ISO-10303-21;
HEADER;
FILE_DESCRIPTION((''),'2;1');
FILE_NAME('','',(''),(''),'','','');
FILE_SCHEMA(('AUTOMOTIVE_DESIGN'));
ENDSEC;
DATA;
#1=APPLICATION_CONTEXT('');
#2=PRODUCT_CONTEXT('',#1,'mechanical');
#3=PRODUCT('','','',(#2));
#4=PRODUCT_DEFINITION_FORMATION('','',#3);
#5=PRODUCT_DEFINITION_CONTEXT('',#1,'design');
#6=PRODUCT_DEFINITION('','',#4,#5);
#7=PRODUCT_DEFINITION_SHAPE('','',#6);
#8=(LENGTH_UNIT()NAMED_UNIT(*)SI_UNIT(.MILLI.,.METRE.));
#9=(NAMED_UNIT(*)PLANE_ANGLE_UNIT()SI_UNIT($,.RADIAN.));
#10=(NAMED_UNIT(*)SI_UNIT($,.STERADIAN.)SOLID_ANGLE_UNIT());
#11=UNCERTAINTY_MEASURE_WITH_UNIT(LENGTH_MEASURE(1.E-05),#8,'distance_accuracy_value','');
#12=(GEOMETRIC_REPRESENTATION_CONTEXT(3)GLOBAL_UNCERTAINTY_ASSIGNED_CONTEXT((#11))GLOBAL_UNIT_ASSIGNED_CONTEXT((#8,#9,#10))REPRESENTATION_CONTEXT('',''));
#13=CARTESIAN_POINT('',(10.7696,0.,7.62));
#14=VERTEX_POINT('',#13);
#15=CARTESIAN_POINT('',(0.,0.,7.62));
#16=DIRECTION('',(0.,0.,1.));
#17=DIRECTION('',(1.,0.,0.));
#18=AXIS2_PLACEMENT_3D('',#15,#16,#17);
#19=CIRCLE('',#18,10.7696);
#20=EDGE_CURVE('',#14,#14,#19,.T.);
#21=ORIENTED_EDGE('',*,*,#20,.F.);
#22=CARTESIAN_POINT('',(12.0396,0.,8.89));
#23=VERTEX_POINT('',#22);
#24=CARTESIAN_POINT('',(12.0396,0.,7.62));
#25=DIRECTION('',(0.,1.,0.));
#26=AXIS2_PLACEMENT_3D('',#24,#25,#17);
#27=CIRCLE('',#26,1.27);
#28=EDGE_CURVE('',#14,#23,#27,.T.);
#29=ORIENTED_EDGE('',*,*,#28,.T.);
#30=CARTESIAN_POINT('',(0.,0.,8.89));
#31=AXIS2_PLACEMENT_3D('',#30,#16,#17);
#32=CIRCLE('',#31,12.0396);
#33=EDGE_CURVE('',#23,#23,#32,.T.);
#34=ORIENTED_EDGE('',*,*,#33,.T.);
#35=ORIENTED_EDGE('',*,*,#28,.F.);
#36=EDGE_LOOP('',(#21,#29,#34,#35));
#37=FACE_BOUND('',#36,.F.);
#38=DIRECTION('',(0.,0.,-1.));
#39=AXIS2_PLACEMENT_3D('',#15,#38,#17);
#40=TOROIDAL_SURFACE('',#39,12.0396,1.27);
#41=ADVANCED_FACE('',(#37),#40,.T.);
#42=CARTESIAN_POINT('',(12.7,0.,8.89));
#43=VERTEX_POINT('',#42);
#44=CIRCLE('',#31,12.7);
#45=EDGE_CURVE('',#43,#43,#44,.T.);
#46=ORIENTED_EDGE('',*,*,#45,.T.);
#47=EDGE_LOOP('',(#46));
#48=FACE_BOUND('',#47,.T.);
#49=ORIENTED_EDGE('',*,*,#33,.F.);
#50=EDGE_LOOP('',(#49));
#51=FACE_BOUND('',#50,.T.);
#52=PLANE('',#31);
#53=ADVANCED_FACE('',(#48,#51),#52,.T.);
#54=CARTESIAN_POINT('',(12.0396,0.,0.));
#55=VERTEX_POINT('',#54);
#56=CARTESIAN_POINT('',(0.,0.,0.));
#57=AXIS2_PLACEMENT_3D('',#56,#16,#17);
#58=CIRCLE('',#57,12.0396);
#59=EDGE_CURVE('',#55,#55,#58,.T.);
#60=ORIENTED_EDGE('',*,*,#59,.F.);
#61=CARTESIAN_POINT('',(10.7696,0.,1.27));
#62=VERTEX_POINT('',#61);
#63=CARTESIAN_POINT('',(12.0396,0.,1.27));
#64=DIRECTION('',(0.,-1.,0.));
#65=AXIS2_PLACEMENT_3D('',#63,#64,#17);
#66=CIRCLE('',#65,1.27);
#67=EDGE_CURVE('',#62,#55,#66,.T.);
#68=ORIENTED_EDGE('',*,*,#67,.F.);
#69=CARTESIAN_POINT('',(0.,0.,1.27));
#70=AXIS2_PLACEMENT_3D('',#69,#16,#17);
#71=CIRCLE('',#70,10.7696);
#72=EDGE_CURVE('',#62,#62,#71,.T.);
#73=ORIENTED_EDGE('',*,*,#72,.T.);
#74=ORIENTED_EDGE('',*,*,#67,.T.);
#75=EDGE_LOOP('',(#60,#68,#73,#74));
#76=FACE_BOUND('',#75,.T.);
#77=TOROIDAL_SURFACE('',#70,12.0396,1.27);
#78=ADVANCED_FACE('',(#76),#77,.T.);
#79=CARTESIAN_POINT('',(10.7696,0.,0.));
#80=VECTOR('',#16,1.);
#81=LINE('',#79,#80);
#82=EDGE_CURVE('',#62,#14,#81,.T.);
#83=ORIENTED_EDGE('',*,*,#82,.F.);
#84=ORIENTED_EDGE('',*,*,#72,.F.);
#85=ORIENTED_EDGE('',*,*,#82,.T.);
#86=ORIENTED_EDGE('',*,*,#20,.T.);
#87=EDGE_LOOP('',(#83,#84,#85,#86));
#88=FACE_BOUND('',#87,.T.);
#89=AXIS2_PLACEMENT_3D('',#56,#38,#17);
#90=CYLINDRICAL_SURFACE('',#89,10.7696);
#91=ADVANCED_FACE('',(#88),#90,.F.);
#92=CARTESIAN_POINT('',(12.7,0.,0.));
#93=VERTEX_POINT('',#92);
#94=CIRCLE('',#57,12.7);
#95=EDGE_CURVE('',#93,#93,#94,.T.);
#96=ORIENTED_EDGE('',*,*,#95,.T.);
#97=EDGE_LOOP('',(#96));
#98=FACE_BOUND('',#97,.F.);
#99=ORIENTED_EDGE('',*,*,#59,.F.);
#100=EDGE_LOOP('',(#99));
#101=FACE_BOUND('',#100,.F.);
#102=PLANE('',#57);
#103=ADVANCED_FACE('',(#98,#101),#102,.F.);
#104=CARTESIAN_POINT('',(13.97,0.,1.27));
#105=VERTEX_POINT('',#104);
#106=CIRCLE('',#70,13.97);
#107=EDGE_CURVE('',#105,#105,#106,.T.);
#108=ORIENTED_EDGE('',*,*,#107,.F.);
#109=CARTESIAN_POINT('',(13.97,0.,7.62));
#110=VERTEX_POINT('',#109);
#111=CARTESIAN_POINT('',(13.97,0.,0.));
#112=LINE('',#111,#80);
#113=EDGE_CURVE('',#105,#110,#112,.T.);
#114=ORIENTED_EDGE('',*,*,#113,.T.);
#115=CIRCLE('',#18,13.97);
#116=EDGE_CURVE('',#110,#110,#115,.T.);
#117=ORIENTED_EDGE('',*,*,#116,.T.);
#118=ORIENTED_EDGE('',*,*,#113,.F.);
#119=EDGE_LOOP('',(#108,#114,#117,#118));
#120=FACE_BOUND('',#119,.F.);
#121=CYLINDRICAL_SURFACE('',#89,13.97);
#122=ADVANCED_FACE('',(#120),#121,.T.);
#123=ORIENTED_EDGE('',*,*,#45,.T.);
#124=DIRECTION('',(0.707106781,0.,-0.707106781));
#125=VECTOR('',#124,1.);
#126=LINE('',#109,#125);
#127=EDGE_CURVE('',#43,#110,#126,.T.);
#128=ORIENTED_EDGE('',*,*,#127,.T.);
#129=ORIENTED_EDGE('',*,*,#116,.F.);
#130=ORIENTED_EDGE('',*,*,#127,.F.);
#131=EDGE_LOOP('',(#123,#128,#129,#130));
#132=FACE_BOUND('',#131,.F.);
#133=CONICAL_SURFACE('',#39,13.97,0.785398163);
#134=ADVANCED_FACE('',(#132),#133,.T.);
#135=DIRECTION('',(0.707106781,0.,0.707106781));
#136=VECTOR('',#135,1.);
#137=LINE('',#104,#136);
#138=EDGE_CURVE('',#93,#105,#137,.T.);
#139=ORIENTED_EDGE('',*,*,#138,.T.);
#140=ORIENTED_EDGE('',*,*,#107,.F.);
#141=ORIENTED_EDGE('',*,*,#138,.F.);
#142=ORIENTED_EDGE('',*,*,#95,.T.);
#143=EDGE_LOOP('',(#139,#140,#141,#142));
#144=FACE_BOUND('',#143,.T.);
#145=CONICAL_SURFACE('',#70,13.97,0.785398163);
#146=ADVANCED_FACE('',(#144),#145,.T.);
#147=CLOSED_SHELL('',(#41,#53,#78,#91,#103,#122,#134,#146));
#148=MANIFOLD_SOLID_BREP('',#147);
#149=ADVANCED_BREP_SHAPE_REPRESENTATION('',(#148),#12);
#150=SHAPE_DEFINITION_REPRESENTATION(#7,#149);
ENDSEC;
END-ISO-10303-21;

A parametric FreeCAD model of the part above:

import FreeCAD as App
import Part
import Sketcher
Q = App.Units.Quantity


def edges_at(feature, points):
    """Names of the edges that pass closest to the given points."""
    edges = feature.Shape.Edges
    near = lambda p: min(range(len(edges)), key=lambda i: edges[i].distToShape(Part.Vertex(*p))[0])
    return sorted({f"Edge{near(p) + 1}" for p in points})

doc = App.newDocument("Part")
body = doc.addObject("PartDesign::Body", "Body")

# Sketch on XY plane
sketch1 = body.newObject("Sketcher::SketchObject", "Sketch")
sketch1.AttachmentSupport = (doc.getObject("XY_Plane"), [""])
sketch1.MapMode = "FlatFace"
sketch1.addGeometry(Part.Circle(App.Vector(0, 0, 0), App.Vector(0, 0, 1), 14), False)
sketch1.addGeometry(Part.Circle(App.Vector(0, 0, 0), App.Vector(0, 0, 1), 11), False)
sketch1.addConstraint(Sketcher.Constraint("Coincident", 0, 3, -1, 1))
sketch1.addConstraint(Sketcher.Constraint("Coincident", 1, 3, -1, 1))
sketch1.addConstraint(Sketcher.Constraint("Diameter", 0, Q("1.1 in")))
sketch1.addConstraint(Sketcher.Constraint("Diameter", 1, Q("0.848 in")))
pad1 = body.newObject("PartDesign::Pad", "Pad")
pad1.Profile = sketch1
pad1.Length = Q("0.35 in")
doc.recompute()

fillet = body.newObject("PartDesign::Fillet", "Fillet")
fillet.Base = (pad1, edges_at(pad1, [(-10.77, 0, 8.89), (-10.77, 0, 0)]))
fillet.Radius = Q("0.05 in")
doc.recompute()

chamfer = body.newObject("PartDesign::Chamfer", "Chamfer")
chamfer.Base = (fillet, edges_at(fillet, [(13.97, 0, 4.445), (-13.97, 0, 0), (-13.97, 0, 8.89)]))
chamfer.Size = Q("0.05 in")

doc.recompute()
